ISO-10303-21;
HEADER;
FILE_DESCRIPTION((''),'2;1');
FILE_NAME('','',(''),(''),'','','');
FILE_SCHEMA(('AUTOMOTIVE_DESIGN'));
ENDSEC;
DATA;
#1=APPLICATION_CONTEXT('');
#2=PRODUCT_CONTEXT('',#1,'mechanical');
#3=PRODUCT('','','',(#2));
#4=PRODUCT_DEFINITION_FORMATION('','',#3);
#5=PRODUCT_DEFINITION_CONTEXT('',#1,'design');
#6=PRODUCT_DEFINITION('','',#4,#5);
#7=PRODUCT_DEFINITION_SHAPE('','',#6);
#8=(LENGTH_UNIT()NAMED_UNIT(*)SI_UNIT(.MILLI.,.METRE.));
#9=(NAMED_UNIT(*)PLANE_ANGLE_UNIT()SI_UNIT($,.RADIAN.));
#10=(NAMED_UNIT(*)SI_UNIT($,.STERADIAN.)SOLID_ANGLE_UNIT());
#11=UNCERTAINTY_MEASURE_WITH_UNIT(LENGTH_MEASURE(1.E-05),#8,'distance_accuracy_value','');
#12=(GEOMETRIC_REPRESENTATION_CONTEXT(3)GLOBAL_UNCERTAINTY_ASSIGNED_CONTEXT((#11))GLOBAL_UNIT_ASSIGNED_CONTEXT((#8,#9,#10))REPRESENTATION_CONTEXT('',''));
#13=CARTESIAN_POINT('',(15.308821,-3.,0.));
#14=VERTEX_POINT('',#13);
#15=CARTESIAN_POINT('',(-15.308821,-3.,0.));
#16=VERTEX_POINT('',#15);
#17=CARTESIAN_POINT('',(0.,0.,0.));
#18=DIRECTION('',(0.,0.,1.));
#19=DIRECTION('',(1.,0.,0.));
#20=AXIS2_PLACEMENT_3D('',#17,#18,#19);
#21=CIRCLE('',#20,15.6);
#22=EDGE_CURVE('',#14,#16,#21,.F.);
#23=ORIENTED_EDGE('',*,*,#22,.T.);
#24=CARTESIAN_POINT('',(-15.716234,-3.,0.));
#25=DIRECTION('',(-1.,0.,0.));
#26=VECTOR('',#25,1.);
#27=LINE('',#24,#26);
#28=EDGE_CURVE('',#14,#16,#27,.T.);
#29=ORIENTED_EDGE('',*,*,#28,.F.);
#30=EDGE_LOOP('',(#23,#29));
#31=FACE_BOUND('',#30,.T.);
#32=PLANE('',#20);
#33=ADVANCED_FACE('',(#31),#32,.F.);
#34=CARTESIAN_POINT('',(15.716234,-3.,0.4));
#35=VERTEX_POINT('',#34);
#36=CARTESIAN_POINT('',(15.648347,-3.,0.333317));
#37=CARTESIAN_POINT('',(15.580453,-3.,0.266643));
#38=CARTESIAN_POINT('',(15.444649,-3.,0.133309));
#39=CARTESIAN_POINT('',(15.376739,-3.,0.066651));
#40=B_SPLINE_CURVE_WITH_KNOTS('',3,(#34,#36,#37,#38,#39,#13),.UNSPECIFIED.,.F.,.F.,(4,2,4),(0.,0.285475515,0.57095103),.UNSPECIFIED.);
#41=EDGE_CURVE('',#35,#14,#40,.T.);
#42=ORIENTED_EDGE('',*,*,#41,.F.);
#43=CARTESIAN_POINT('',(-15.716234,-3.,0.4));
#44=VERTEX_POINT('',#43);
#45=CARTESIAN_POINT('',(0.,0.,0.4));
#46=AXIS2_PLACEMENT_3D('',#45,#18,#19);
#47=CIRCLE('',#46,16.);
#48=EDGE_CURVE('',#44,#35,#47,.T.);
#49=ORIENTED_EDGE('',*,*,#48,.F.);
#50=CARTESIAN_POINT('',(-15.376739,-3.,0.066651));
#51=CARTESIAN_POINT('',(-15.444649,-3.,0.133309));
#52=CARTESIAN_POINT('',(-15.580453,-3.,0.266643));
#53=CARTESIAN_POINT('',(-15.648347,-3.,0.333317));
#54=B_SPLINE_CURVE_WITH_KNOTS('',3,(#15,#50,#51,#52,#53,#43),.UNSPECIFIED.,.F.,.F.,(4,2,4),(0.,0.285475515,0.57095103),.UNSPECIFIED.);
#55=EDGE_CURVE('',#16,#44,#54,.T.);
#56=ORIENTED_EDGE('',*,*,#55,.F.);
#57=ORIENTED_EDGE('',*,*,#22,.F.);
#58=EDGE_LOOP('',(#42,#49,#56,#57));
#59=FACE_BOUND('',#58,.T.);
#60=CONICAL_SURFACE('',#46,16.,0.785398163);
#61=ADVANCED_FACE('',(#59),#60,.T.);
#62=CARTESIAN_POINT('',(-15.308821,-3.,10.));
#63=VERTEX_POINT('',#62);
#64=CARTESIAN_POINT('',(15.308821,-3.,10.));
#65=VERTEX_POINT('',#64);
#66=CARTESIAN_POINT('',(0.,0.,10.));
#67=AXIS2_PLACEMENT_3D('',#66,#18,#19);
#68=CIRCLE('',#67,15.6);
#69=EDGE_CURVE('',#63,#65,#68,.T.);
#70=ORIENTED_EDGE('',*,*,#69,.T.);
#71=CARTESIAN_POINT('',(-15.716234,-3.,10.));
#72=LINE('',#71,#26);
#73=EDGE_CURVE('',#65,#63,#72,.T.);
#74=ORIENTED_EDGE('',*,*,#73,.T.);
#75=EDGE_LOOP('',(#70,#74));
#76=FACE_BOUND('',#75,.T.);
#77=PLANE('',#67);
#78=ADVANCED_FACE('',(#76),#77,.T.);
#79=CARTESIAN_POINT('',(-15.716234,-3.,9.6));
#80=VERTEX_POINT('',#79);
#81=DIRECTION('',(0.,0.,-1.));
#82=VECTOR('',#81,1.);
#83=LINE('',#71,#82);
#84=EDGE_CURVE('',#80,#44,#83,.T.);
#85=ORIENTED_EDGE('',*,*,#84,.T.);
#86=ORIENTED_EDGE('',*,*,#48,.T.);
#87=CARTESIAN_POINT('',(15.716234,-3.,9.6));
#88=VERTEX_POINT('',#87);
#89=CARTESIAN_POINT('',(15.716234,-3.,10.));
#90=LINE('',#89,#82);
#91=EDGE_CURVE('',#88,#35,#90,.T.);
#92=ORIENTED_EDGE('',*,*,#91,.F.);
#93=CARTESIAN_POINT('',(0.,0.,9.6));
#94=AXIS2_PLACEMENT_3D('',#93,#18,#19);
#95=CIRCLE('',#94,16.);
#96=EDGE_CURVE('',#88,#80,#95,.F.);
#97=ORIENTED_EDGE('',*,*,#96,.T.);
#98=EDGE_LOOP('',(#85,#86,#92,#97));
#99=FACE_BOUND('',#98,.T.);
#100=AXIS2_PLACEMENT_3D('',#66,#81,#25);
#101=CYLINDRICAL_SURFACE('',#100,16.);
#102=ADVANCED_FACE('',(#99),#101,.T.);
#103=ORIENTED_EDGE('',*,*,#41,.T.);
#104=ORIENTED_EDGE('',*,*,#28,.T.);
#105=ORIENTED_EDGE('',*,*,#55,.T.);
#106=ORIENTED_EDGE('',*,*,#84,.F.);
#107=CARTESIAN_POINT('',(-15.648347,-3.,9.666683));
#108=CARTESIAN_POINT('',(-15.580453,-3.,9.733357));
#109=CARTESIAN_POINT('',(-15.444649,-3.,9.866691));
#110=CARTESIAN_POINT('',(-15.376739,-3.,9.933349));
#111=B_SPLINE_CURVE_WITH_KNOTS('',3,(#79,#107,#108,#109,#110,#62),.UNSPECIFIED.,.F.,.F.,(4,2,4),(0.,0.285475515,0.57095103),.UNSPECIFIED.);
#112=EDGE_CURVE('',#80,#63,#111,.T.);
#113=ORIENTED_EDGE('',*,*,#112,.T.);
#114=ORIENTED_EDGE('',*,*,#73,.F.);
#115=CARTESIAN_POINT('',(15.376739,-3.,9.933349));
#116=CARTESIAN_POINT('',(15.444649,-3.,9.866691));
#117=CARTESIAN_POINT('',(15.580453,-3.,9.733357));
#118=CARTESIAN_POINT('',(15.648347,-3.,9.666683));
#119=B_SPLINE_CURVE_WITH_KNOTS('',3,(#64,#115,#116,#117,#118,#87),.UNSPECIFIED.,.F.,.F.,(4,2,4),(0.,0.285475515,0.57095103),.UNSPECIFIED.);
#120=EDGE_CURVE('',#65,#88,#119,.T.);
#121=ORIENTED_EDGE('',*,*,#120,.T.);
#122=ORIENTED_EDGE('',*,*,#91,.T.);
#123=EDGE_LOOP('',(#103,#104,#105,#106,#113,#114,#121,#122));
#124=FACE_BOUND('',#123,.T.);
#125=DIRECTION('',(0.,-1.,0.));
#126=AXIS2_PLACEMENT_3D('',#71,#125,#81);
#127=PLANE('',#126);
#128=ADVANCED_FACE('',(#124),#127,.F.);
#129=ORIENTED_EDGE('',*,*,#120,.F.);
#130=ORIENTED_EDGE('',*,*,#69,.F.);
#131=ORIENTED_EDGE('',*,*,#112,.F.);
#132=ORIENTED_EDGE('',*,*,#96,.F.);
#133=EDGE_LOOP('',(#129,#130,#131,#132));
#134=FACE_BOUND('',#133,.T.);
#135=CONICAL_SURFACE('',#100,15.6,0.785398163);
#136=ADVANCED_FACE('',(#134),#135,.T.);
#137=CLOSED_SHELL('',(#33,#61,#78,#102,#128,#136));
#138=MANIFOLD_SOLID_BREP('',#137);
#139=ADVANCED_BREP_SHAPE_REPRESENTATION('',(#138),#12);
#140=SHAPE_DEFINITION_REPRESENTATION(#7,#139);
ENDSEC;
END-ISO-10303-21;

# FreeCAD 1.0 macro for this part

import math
import FreeCAD as App
import Part
import Sketcher
from FreeCAD import Vector


def edges_at(feature, points):
    """Names of the edges that pass closest to the given points."""
    edges = feature.Shape.Edges
    near = lambda p: min(range(len(edges)), key=lambda i: edges[i].distToShape(Part.Vertex(*p))[0])
    return sorted({f"Edge{near(p) + 1}" for p in points})

doc = App.newDocument("Part")
params = doc.addObject("Spreadsheet::Sheet", "Params")
for row, (alias, value) in enumerate([
    ("sketch1_radius", "16 mm"),
    ("pad1_length", "10 mm"),
    ("chamfer_size", "0.4 mm"),
], start=1):
    params.set(f"A{row}", alias)
    params.set(f"B{row}", "=" + value)
    params.setAlias(f"B{row}", alias)

body = doc.addObject("PartDesign::Body", "Body")

sketch1 = body.newObject("Sketcher::SketchObject", "Sketch")
sketch1.AttachmentSupport = (doc.getObject("XY_Plane"), [""])
sketch1.MapMode = "FlatFace"
sketch1.addGeometry(Part.LineSegment(Vector(16, -3, 0), Vector(-16, -3, 0)), False)
sketch1.addGeometry(Part.ArcOfCircle(Part.Circle(Vector(0, 0, 0), Vector(0, 0, 1), 16), math.radians(-169), math.radians(-11)), False)
sketch1.addConstraint(Sketcher.Constraint("Coincident", 0, 1, 1, 2))
sketch1.addConstraint(Sketcher.Constraint("Coincident", 1, 1, 0, 2))
sketch1.addConstraint(Sketcher.Constraint("Horizontal", 0))
sketch1.addConstraint(Sketcher.Constraint("Coincident", 1, 3, -1, 1))
sketch1.addConstraint(Sketcher.Constraint("Radius", 1, 16.0))
sketch1.addConstraint(Sketcher.Constraint("DistanceY", 0, 1, -1, 1, 3.0))
sketch1.setExpression("Constraints[4]", "Params.sketch1_radius")
pad1 = body.newObject("PartDesign::Pad", "Pad")
pad1.Profile = sketch1
pad1.setExpression("Length", "Params.pad1_length")
doc.recompute()

chamfer = body.newObject("PartDesign::Chamfer", "Chamfer")
chamfer.Base = (pad1, edges_at(pad1, [(0, -16, 0), (0, -16, 10)]))
chamfer.setExpression("Size", "Params.chamfer_size")

doc.recompute()
